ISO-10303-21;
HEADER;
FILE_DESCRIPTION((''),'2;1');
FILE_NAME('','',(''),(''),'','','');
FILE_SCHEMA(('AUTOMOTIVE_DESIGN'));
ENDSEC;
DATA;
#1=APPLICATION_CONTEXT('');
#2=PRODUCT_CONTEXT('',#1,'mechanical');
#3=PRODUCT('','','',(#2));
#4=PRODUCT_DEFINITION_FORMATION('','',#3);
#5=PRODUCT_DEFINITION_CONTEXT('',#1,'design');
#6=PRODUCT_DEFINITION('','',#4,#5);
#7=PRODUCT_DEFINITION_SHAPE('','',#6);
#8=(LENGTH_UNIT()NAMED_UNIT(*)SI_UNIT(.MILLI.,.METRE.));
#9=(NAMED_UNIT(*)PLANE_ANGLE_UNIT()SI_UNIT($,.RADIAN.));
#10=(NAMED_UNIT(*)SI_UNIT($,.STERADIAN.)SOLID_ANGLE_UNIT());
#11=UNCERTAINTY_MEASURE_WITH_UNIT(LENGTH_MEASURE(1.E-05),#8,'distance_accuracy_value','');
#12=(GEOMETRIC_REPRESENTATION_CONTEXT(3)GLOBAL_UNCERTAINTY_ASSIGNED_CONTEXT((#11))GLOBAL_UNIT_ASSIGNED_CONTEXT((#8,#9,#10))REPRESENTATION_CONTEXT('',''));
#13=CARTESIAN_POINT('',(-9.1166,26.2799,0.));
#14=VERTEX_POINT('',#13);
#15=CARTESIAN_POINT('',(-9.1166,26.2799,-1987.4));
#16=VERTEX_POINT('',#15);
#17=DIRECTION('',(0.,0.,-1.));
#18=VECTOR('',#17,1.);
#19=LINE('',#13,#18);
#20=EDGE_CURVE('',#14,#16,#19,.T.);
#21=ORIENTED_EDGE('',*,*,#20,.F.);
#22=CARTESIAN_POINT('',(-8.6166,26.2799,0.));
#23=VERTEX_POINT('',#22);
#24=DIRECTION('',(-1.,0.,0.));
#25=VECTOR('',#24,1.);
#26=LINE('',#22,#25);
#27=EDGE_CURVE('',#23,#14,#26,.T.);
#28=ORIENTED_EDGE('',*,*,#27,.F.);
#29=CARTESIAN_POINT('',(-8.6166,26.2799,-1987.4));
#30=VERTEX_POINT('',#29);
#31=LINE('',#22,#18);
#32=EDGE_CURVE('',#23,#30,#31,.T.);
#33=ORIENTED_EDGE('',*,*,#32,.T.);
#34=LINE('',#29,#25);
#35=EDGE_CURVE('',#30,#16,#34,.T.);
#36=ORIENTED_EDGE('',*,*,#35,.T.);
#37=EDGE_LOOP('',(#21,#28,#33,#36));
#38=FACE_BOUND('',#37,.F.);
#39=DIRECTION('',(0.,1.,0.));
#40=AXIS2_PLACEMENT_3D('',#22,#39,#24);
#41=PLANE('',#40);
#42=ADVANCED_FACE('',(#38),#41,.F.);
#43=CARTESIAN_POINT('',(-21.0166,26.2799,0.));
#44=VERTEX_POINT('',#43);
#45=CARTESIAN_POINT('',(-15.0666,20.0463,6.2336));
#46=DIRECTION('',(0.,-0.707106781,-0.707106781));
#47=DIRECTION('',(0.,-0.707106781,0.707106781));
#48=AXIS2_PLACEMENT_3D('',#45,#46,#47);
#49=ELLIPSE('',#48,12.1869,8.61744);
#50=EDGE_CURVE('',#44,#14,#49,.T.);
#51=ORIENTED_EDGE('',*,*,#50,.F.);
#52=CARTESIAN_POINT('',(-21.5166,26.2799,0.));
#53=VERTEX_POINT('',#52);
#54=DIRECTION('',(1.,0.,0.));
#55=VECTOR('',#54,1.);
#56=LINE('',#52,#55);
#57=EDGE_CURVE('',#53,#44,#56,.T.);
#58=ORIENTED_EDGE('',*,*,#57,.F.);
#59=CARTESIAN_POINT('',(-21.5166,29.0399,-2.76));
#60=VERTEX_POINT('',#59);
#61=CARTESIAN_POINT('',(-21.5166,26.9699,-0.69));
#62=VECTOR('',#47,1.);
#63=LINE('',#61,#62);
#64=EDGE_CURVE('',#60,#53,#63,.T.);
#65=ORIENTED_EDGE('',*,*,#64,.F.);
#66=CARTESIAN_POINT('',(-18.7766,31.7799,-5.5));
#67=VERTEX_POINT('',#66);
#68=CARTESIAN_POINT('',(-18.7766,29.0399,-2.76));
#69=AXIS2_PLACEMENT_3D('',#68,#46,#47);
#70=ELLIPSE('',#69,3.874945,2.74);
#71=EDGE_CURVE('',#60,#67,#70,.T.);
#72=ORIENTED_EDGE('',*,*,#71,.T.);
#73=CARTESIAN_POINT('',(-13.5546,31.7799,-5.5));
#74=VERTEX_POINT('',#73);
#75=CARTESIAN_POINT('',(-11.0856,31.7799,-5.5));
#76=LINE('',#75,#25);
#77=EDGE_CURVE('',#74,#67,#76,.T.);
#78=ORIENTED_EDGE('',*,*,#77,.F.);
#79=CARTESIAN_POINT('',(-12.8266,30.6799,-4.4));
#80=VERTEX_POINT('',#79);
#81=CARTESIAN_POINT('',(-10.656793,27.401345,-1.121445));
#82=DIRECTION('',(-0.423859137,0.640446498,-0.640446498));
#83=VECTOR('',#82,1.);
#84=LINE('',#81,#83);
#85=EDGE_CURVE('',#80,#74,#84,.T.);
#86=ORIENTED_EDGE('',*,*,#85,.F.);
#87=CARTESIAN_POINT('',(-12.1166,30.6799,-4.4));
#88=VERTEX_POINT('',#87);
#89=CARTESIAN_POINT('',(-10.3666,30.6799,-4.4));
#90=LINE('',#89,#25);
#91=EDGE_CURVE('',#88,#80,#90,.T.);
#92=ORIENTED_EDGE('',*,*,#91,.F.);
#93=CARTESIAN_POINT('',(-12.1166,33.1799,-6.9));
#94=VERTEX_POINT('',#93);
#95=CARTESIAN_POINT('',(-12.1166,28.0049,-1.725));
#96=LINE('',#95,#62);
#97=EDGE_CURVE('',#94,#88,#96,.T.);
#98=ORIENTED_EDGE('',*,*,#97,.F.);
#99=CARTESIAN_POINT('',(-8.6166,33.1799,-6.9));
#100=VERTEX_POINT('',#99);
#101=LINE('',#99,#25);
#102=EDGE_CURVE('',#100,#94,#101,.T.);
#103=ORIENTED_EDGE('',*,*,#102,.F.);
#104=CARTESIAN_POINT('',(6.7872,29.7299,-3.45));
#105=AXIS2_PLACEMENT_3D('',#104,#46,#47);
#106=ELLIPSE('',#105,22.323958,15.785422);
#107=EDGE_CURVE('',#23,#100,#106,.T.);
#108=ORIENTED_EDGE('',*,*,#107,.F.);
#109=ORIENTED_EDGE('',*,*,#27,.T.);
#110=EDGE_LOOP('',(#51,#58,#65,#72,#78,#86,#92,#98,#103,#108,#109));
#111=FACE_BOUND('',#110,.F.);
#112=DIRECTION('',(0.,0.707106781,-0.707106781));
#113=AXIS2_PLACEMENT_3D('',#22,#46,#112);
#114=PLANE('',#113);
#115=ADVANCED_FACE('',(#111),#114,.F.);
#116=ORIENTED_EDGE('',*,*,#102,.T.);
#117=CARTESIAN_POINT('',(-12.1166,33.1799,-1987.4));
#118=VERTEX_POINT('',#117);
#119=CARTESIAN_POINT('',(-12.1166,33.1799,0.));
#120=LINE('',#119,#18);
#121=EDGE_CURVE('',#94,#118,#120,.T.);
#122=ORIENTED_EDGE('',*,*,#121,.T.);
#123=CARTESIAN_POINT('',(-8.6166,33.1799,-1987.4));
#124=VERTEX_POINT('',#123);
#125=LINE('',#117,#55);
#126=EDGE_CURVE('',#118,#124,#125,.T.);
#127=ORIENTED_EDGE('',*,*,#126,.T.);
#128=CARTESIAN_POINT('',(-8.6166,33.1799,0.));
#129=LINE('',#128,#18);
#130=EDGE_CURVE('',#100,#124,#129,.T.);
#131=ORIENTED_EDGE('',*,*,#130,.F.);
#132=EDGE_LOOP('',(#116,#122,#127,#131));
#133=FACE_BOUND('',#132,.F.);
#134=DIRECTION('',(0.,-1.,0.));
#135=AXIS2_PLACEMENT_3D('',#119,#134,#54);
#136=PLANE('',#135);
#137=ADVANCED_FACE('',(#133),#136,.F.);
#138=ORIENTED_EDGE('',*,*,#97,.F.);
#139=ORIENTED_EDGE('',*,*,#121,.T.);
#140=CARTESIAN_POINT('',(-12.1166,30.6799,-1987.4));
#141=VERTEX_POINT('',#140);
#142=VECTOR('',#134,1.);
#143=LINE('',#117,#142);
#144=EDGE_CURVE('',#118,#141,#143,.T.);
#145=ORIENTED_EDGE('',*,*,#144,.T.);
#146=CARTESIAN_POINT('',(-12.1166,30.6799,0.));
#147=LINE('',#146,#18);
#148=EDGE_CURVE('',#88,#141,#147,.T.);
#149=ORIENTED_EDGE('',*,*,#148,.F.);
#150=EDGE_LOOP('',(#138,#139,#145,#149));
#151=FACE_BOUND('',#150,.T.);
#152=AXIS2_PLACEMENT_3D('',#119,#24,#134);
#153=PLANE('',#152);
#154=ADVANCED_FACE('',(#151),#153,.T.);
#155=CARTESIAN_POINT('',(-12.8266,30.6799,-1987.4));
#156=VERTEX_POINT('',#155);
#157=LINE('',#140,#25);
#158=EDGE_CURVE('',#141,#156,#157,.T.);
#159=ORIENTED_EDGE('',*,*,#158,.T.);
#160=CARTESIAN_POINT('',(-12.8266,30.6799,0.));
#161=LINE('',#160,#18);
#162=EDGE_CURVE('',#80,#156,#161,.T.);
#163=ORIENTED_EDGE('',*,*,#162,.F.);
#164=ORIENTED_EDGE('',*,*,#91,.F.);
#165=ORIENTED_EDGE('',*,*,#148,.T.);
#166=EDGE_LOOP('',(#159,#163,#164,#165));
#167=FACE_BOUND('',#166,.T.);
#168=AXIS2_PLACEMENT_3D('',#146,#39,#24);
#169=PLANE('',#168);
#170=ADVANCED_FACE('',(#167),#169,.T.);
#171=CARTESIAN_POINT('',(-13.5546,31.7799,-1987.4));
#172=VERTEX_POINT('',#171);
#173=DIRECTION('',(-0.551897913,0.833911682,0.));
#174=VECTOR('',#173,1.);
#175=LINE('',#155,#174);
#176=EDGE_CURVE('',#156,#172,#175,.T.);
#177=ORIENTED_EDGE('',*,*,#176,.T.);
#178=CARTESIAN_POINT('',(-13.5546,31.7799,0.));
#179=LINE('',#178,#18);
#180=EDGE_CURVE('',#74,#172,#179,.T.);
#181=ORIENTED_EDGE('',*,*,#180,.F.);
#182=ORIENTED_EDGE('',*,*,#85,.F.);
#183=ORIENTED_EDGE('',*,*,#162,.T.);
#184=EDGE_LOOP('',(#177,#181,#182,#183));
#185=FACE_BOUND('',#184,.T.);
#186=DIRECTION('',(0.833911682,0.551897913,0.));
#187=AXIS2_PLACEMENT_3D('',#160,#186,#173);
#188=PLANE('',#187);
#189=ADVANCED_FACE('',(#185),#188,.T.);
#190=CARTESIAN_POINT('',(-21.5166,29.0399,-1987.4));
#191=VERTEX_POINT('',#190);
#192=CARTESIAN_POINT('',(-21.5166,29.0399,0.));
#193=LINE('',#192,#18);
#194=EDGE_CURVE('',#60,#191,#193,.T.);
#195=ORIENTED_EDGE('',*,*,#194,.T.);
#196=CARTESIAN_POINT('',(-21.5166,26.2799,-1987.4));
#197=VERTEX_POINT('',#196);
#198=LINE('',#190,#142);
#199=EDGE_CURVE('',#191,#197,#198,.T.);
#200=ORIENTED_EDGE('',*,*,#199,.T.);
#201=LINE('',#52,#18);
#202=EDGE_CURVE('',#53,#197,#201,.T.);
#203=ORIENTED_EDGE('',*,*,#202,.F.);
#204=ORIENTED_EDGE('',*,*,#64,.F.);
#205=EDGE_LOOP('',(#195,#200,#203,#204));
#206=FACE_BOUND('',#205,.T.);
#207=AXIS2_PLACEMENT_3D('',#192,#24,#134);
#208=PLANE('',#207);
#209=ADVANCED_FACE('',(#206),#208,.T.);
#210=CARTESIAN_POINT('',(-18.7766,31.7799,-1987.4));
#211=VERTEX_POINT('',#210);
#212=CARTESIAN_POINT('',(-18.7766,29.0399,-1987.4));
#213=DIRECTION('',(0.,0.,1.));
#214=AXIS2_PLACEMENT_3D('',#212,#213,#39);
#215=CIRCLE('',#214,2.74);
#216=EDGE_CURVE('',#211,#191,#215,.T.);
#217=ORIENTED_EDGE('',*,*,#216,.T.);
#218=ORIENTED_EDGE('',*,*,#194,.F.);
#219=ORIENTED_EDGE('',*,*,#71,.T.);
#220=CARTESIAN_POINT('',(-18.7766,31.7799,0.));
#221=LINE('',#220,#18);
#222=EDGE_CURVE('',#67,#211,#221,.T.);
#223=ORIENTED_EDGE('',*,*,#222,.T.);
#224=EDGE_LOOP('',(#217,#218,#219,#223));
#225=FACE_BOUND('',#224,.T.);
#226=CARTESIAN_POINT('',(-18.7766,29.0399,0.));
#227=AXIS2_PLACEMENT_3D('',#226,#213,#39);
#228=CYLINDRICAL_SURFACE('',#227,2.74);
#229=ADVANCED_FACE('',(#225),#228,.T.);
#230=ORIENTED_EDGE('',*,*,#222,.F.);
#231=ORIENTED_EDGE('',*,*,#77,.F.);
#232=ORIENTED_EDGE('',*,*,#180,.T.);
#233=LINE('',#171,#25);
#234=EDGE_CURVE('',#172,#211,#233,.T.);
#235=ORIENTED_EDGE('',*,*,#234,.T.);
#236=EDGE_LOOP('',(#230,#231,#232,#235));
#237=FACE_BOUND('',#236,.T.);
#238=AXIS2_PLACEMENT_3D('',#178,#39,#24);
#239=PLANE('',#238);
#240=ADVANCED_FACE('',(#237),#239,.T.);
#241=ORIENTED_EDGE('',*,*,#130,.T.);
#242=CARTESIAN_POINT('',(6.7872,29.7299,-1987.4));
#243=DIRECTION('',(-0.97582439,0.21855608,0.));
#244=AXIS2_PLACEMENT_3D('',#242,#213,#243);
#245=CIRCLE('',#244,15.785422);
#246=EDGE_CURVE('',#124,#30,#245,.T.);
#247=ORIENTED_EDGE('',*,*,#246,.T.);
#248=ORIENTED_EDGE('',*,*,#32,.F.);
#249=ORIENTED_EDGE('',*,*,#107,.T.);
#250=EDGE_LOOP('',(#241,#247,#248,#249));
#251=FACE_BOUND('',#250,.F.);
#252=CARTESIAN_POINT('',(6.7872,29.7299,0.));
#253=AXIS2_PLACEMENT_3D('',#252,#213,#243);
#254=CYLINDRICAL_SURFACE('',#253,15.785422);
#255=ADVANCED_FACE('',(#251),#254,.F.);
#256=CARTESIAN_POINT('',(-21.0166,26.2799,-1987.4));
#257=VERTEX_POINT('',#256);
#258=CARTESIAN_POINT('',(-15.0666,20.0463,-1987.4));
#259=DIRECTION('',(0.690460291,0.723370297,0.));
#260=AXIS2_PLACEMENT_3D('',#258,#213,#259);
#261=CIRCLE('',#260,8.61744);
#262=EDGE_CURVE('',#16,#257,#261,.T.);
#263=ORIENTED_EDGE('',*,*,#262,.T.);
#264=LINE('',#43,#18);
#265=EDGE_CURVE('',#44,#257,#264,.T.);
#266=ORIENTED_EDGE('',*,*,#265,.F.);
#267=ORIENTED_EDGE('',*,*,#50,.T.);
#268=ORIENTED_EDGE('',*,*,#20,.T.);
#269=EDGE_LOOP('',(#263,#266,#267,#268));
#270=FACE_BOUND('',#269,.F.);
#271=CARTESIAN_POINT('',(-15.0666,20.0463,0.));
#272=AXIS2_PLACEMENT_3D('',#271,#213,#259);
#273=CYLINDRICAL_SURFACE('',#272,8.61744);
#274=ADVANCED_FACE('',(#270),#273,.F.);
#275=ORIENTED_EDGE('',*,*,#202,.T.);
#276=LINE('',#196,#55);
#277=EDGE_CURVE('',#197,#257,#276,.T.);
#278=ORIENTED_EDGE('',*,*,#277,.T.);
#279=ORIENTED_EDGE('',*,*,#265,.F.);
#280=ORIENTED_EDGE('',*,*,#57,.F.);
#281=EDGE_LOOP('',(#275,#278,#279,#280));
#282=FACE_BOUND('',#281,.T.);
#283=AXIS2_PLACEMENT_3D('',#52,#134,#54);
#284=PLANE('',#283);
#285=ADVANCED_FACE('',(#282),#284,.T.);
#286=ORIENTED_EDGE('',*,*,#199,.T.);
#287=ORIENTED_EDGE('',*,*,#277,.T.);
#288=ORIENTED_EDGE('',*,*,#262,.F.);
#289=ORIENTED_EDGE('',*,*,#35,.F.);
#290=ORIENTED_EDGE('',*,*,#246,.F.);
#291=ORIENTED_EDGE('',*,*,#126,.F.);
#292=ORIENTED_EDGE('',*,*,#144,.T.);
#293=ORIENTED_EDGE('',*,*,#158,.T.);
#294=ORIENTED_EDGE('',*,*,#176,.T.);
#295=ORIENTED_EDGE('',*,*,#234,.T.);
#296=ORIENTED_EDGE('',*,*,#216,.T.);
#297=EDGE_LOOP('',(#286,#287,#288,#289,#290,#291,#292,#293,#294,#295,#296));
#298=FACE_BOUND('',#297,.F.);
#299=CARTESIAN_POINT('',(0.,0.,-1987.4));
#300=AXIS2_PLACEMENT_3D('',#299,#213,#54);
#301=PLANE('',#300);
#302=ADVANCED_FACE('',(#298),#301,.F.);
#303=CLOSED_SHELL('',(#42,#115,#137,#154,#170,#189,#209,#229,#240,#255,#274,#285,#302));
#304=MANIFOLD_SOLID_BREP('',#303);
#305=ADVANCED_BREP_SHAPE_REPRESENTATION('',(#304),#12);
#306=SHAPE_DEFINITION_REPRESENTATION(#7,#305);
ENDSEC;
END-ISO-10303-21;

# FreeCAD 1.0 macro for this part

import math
import FreeCAD as App
import Part
import Sketcher
from FreeCAD import Vector


def add_polygon(sketch, points):
    """Adds a closed chain of lines whose ends are joined by coincident constraints."""
    first, n = sketch.GeometryCount, len(points)
    for a, b in zip(points, points[1:] + points[:1]):
        sketch.addGeometry(Part.LineSegment(App.Vector(*a, 0), App.Vector(*b, 0)), False)
    for i in range(n):
        sketch.addConstraint(Sketcher.Constraint("Coincident", first + i, 2, first + (i + 1) % n, 1))

doc = App.newDocument("Part")
params = doc.addObject("Spreadsheet::Sheet", "Params")
for row, (alias, value) in enumerate([
    ("sketch1_radius", "2.74 mm"),
    ("sketch1_width", "0.5 mm"),
    ("sketch1_width2", "3.5 mm"),
    ("sketch1_height", "2.5 mm"),
    ("sketch1_width3", "0.71 mm"),
    ("pad1_length", "1987.4 mm"),
    ("sketch2_width", "6.9 mm"),
], start=1):
    params.set(f"A{row}", alias)
    params.set(f"B{row}", "=" + value)
    params.setAlias(f"B{row}", alias)

body = doc.addObject("PartDesign::Body", "Body")

sketch1 = body.newObject("Sketcher::SketchObject", "Sketch")
sketch1.AttachmentSupport = (doc.getObject("XY_Plane"), [""])
sketch1.MapMode = "FlatFace"
sketch1.addGeometry([
    Part.LineSegment(Vector(-12.8, 30.7, 0), Vector(-13.6, 31.8, 0)),
    Part.LineSegment(Vector(-13.6, 31.8, 0), Vector(-18.8, 31.8, 0)),
    Part.ArcOfCircle(Part.Circle(Vector(-18.8, 29, 0), Vector(0, 0, 1), 2.7), math.radians(90), math.radians(180)),
    Part.LineSegment(Vector(-21.5, 29, 0), Vector(-21.5, 26.3, 0)),
    Part.LineSegment(Vector(-21.5, 26.3, 0), Vector(-21, 26.3, 0)),
    Part.ArcOfCircle(Part.Circle(Vector(-15.1, 20, 0), Vector(0, 0, 1), 8.6), math.radians(46), math.radians(134)),
    Part.LineSegment(Vector(-9.1, 26.3, 0), Vector(-8.6, 26.3, 0)),
    Part.ArcOfCircle(Part.Circle(Vector(6.8, 29.7, 0), Vector(0, 0, 1), 15.8), math.radians(167), math.radians(193)),
    Part.LineSegment(Vector(-8.6, 33.2, 0), Vector(-12.1, 33.2, 0)),
    Part.LineSegment(Vector(-12.1, 33.2, 0), Vector(-12.1, 30.7, 0)),
    Part.LineSegment(Vector(-12.1, 30.7, 0), Vector(-12.8, 30.7, 0)),
], False)
sketch1.addConstraint([
    Sketcher.Constraint("Coincident", 0, 2, 1, 1),
    Sketcher.Constraint("Tangent", 1, 2, 2, 1),
    Sketcher.Constraint("Tangent", 2, 2, 3, 1),
    Sketcher.Constraint("Coincident", 3, 2, 4, 1),
    Sketcher.Constraint("Coincident", 4, 2, 5, 2),
    Sketcher.Constraint("Coincident", 5, 1, 6, 1),
    Sketcher.Constraint("Coincident", 6, 2, 7, 2),
    Sketcher.Constraint("Coincident", 7, 1, 8, 1),
    Sketcher.Constraint("Coincident", 8, 2, 9, 1),
    Sketcher.Constraint("Coincident", 9, 2, 10, 1),
    Sketcher.Constraint("Coincident", 10, 2, 0, 1),
    Sketcher.Constraint("Horizontal", 1),
    Sketcher.Constraint("Vertical", 3),
    Sketcher.Constraint("Horizontal", 4),
    Sketcher.Constraint("Horizontal", 6),
    Sketcher.Constraint("Horizontal", 8),
    Sketcher.Constraint("Vertical", 9),
    Sketcher.Constraint("Horizontal", 10),
    Sketcher.Constraint("Horizontal", 4, 2, 5, 1),
    Sketcher.Constraint("Vertical", 6, 2, 7, 1),
    Sketcher.Constraint("Equal", 4, 6),
    Sketcher.Constraint("Radius", 2, 2.74),
    Sketcher.Constraint("DistanceX", 4, 1, 4, 2, 0.5),
    Sketcher.Constraint("DistanceX", 8, 2, 8, 1, 3.5),
    Sketcher.Constraint("DistanceY", 9, 2, 9, 1, 2.5),
    Sketcher.Constraint("DistanceX", 10, 2, 10, 1, 0.71),
    Sketcher.Constraint("DistanceY", 3, 2, 3, 1, 2.76),
    Sketcher.Constraint("DistanceX", 1, 2, 1, 1, 5.222),
    Sketcher.Constraint("Radius", 5, 8.6174),
    Sketcher.Constraint("Radius", 7, 15.7854),
    Sketcher.Constraint("DistanceX", 4, 2, 5, 1, 11.9),
    Sketcher.Constraint("DistanceY", 0, 2, 7, 1, 1.4),
    Sketcher.Constraint("DistanceY", -1, 1, 2, 3, 29.04),
    Sketcher.Constraint("DistanceX", 2, 3, -1, 1, 18.7766),
])
sketch1.setExpression("Constraints[21]", "Params.sketch1_radius")
sketch1.setExpression("Constraints[22]", "Params.sketch1_width")
sketch1.setExpression("Constraints[23]", "Params.sketch1_width2")
sketch1.setExpression("Constraints[24]", "Params.sketch1_height")
sketch1.setExpression("Constraints[25]", "Params.sketch1_width3")
pad1 = body.newObject("PartDesign::Pad", "Pad")
pad1.Profile = sketch1
pad1.setExpression("Length", "Params.pad1_length")
pad1.Reversed = True

sketch2 = body.newObject("Sketcher::SketchObject", "Sketch001")
sketch2.AttachmentSupport = (doc.getObject("YZ_Plane"), [""])
sketch2.MapMode = "FlatFace"
sketch2.AttachmentOffset = App.Placement(Vector(0, 0, -8.6166), App.Rotation())
add_polygon(sketch2, [(26, 0), (33, 0), (33, -7)])
sketch2.addConstraint([
    Sketcher.Constraint("Horizontal", 0),
    Sketcher.Constraint("Vertical", 1),
    Sketcher.Constraint("PointOnObject", 0, 2, -1),
    Sketcher.Constraint("Equal", 0, 1),
    Sketcher.Constraint("DistanceX", 0, 1, 0, 2, 6.9),
    Sketcher.Constraint("DistanceX", -1, 1, 0, 2, 33.18),
])
sketch2.setExpression("Constraints[7]", "Params.sketch2_width")
pocket1 = body.newObject("PartDesign::Pocket", "Pocket")
pocket1.Profile = sketch2
pocket1.Type = "ThroughAll"

doc.recompute()
